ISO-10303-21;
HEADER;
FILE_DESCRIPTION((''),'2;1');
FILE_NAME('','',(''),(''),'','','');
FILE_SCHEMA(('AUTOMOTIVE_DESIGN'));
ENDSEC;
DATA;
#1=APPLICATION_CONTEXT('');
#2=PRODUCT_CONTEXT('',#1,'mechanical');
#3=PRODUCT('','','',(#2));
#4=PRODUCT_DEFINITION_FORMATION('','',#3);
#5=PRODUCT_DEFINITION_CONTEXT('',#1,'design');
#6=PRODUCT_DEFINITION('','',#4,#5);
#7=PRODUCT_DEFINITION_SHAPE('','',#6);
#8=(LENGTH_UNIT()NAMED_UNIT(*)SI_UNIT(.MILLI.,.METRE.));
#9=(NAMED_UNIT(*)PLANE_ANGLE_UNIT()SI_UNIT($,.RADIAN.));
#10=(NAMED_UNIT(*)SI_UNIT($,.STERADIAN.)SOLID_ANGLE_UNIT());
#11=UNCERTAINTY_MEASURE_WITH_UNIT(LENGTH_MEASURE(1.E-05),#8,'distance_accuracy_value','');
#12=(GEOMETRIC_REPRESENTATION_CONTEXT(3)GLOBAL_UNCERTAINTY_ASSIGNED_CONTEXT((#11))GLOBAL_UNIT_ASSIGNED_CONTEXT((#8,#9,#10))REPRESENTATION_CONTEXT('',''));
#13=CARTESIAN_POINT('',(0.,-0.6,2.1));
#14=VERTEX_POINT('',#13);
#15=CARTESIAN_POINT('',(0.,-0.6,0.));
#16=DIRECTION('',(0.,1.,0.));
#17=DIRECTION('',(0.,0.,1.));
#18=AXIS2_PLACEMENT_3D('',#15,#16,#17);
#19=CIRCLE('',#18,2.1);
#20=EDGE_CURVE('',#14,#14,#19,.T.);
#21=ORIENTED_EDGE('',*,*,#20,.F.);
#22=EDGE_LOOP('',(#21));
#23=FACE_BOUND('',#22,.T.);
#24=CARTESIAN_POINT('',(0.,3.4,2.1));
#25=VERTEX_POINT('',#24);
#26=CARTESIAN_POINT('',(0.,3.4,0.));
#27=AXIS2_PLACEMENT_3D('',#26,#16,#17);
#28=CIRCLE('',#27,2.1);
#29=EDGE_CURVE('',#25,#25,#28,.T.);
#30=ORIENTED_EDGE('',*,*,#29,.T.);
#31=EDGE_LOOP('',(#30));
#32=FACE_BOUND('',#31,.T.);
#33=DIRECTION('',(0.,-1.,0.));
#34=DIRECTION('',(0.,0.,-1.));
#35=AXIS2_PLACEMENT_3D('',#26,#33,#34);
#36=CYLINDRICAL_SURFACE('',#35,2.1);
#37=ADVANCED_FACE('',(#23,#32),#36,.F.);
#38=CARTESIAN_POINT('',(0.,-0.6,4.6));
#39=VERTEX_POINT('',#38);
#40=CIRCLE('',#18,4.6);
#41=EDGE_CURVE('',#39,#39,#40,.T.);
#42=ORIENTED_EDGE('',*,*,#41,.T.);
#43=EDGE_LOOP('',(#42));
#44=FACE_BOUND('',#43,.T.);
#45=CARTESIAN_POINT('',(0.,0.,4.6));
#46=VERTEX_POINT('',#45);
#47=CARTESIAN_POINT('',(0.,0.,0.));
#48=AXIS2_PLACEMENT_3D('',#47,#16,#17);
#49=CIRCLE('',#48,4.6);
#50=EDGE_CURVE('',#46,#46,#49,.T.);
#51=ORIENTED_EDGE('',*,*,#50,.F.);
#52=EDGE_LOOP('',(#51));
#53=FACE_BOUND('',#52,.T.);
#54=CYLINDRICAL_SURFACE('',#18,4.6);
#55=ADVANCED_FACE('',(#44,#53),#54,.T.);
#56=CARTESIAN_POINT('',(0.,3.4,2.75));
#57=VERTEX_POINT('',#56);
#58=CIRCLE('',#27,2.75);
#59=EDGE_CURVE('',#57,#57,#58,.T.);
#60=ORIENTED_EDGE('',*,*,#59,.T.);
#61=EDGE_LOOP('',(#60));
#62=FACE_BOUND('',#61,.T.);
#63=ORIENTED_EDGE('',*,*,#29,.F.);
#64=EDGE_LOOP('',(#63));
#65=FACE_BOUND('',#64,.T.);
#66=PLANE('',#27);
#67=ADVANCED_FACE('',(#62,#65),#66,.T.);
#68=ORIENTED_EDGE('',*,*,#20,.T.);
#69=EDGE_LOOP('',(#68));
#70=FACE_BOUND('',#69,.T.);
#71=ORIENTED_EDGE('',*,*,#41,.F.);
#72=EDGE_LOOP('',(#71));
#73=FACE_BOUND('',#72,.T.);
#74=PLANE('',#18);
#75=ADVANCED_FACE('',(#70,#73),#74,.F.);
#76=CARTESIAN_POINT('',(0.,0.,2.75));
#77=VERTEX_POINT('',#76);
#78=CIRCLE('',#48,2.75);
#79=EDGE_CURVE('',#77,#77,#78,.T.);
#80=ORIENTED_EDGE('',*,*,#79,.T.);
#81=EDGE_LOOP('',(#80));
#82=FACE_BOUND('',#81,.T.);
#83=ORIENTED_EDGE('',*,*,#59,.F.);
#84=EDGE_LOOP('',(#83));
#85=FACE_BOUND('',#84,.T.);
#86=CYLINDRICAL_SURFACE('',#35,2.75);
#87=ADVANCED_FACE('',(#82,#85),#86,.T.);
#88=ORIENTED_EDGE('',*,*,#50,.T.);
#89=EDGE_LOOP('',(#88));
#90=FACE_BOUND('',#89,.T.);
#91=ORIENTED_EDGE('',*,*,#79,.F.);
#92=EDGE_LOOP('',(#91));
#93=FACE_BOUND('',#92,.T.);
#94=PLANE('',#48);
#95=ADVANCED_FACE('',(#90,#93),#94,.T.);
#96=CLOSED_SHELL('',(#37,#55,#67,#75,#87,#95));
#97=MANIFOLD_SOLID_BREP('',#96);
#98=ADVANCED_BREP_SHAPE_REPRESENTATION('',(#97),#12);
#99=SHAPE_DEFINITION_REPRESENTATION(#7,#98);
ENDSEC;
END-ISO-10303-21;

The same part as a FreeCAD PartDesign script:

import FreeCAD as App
import Part
import Sketcher

doc = App.newDocument("Part")
body = doc.addObject("PartDesign::Body", "Body")

sketch1 = body.newObject("Sketcher::SketchObject", "Sketch")
sketch1.AttachmentSupport = (doc.getObject("XZ_Plane"), [""])
sketch1.MapMode = "FlatFace"
sketch1.addGeometry([
    Part.Circle(App.Vector(0, 0, 0), App.Vector(0, 0, 1), 2.75),
    Part.Circle(App.Vector(0, 0, 0), App.Vector(0, 0, 1), 2.1),
], False)
sketch1.addConstraint([
    Sketcher.Constraint("Coincident", 0, 3, -1, 1),
    Sketcher.Constraint("Coincident", 1, 3, -1, 1),
    Sketcher.Constraint("Diameter", 0, 5.5),
    Sketcher.Constraint("Diameter", 1, 4.2),
])
pad1 = body.newObject("PartDesign::Pad", "Pad")
pad1.Profile = sketch1
pad1.Length = 3.4
pad1.Reversed = True

sketch2 = body.newObject("Sketcher::SketchObject", "Sketch001")
sketch2.AttachmentSupport = (doc.getObject("XZ_Plane"), [""])
sketch2.MapMode = "FlatFace"
sketch2.addGeometry([
    Part.Circle(App.Vector(0, 0, 0), App.Vector(0, 0, 1), 4.6),
    Part.Circle(App.Vector(0, 0, 0), App.Vector(0, 0, 1), 2.1),
], False)
sketch2.addConstraint([
    Sketcher.Constraint("Coincident", 0, 3, -1, 1),
    Sketcher.Constraint("Coincident", 1, 3, -1, 1),
    Sketcher.Constraint("Diameter", 0, 9.2),
    Sketcher.Constraint("Diameter", 1, 4.2),
])
pad2 = body.newObject("PartDesign::Pad", "Pad001")
pad2.Profile = sketch2
pad2.Length = 0.6

doc.recompute()
